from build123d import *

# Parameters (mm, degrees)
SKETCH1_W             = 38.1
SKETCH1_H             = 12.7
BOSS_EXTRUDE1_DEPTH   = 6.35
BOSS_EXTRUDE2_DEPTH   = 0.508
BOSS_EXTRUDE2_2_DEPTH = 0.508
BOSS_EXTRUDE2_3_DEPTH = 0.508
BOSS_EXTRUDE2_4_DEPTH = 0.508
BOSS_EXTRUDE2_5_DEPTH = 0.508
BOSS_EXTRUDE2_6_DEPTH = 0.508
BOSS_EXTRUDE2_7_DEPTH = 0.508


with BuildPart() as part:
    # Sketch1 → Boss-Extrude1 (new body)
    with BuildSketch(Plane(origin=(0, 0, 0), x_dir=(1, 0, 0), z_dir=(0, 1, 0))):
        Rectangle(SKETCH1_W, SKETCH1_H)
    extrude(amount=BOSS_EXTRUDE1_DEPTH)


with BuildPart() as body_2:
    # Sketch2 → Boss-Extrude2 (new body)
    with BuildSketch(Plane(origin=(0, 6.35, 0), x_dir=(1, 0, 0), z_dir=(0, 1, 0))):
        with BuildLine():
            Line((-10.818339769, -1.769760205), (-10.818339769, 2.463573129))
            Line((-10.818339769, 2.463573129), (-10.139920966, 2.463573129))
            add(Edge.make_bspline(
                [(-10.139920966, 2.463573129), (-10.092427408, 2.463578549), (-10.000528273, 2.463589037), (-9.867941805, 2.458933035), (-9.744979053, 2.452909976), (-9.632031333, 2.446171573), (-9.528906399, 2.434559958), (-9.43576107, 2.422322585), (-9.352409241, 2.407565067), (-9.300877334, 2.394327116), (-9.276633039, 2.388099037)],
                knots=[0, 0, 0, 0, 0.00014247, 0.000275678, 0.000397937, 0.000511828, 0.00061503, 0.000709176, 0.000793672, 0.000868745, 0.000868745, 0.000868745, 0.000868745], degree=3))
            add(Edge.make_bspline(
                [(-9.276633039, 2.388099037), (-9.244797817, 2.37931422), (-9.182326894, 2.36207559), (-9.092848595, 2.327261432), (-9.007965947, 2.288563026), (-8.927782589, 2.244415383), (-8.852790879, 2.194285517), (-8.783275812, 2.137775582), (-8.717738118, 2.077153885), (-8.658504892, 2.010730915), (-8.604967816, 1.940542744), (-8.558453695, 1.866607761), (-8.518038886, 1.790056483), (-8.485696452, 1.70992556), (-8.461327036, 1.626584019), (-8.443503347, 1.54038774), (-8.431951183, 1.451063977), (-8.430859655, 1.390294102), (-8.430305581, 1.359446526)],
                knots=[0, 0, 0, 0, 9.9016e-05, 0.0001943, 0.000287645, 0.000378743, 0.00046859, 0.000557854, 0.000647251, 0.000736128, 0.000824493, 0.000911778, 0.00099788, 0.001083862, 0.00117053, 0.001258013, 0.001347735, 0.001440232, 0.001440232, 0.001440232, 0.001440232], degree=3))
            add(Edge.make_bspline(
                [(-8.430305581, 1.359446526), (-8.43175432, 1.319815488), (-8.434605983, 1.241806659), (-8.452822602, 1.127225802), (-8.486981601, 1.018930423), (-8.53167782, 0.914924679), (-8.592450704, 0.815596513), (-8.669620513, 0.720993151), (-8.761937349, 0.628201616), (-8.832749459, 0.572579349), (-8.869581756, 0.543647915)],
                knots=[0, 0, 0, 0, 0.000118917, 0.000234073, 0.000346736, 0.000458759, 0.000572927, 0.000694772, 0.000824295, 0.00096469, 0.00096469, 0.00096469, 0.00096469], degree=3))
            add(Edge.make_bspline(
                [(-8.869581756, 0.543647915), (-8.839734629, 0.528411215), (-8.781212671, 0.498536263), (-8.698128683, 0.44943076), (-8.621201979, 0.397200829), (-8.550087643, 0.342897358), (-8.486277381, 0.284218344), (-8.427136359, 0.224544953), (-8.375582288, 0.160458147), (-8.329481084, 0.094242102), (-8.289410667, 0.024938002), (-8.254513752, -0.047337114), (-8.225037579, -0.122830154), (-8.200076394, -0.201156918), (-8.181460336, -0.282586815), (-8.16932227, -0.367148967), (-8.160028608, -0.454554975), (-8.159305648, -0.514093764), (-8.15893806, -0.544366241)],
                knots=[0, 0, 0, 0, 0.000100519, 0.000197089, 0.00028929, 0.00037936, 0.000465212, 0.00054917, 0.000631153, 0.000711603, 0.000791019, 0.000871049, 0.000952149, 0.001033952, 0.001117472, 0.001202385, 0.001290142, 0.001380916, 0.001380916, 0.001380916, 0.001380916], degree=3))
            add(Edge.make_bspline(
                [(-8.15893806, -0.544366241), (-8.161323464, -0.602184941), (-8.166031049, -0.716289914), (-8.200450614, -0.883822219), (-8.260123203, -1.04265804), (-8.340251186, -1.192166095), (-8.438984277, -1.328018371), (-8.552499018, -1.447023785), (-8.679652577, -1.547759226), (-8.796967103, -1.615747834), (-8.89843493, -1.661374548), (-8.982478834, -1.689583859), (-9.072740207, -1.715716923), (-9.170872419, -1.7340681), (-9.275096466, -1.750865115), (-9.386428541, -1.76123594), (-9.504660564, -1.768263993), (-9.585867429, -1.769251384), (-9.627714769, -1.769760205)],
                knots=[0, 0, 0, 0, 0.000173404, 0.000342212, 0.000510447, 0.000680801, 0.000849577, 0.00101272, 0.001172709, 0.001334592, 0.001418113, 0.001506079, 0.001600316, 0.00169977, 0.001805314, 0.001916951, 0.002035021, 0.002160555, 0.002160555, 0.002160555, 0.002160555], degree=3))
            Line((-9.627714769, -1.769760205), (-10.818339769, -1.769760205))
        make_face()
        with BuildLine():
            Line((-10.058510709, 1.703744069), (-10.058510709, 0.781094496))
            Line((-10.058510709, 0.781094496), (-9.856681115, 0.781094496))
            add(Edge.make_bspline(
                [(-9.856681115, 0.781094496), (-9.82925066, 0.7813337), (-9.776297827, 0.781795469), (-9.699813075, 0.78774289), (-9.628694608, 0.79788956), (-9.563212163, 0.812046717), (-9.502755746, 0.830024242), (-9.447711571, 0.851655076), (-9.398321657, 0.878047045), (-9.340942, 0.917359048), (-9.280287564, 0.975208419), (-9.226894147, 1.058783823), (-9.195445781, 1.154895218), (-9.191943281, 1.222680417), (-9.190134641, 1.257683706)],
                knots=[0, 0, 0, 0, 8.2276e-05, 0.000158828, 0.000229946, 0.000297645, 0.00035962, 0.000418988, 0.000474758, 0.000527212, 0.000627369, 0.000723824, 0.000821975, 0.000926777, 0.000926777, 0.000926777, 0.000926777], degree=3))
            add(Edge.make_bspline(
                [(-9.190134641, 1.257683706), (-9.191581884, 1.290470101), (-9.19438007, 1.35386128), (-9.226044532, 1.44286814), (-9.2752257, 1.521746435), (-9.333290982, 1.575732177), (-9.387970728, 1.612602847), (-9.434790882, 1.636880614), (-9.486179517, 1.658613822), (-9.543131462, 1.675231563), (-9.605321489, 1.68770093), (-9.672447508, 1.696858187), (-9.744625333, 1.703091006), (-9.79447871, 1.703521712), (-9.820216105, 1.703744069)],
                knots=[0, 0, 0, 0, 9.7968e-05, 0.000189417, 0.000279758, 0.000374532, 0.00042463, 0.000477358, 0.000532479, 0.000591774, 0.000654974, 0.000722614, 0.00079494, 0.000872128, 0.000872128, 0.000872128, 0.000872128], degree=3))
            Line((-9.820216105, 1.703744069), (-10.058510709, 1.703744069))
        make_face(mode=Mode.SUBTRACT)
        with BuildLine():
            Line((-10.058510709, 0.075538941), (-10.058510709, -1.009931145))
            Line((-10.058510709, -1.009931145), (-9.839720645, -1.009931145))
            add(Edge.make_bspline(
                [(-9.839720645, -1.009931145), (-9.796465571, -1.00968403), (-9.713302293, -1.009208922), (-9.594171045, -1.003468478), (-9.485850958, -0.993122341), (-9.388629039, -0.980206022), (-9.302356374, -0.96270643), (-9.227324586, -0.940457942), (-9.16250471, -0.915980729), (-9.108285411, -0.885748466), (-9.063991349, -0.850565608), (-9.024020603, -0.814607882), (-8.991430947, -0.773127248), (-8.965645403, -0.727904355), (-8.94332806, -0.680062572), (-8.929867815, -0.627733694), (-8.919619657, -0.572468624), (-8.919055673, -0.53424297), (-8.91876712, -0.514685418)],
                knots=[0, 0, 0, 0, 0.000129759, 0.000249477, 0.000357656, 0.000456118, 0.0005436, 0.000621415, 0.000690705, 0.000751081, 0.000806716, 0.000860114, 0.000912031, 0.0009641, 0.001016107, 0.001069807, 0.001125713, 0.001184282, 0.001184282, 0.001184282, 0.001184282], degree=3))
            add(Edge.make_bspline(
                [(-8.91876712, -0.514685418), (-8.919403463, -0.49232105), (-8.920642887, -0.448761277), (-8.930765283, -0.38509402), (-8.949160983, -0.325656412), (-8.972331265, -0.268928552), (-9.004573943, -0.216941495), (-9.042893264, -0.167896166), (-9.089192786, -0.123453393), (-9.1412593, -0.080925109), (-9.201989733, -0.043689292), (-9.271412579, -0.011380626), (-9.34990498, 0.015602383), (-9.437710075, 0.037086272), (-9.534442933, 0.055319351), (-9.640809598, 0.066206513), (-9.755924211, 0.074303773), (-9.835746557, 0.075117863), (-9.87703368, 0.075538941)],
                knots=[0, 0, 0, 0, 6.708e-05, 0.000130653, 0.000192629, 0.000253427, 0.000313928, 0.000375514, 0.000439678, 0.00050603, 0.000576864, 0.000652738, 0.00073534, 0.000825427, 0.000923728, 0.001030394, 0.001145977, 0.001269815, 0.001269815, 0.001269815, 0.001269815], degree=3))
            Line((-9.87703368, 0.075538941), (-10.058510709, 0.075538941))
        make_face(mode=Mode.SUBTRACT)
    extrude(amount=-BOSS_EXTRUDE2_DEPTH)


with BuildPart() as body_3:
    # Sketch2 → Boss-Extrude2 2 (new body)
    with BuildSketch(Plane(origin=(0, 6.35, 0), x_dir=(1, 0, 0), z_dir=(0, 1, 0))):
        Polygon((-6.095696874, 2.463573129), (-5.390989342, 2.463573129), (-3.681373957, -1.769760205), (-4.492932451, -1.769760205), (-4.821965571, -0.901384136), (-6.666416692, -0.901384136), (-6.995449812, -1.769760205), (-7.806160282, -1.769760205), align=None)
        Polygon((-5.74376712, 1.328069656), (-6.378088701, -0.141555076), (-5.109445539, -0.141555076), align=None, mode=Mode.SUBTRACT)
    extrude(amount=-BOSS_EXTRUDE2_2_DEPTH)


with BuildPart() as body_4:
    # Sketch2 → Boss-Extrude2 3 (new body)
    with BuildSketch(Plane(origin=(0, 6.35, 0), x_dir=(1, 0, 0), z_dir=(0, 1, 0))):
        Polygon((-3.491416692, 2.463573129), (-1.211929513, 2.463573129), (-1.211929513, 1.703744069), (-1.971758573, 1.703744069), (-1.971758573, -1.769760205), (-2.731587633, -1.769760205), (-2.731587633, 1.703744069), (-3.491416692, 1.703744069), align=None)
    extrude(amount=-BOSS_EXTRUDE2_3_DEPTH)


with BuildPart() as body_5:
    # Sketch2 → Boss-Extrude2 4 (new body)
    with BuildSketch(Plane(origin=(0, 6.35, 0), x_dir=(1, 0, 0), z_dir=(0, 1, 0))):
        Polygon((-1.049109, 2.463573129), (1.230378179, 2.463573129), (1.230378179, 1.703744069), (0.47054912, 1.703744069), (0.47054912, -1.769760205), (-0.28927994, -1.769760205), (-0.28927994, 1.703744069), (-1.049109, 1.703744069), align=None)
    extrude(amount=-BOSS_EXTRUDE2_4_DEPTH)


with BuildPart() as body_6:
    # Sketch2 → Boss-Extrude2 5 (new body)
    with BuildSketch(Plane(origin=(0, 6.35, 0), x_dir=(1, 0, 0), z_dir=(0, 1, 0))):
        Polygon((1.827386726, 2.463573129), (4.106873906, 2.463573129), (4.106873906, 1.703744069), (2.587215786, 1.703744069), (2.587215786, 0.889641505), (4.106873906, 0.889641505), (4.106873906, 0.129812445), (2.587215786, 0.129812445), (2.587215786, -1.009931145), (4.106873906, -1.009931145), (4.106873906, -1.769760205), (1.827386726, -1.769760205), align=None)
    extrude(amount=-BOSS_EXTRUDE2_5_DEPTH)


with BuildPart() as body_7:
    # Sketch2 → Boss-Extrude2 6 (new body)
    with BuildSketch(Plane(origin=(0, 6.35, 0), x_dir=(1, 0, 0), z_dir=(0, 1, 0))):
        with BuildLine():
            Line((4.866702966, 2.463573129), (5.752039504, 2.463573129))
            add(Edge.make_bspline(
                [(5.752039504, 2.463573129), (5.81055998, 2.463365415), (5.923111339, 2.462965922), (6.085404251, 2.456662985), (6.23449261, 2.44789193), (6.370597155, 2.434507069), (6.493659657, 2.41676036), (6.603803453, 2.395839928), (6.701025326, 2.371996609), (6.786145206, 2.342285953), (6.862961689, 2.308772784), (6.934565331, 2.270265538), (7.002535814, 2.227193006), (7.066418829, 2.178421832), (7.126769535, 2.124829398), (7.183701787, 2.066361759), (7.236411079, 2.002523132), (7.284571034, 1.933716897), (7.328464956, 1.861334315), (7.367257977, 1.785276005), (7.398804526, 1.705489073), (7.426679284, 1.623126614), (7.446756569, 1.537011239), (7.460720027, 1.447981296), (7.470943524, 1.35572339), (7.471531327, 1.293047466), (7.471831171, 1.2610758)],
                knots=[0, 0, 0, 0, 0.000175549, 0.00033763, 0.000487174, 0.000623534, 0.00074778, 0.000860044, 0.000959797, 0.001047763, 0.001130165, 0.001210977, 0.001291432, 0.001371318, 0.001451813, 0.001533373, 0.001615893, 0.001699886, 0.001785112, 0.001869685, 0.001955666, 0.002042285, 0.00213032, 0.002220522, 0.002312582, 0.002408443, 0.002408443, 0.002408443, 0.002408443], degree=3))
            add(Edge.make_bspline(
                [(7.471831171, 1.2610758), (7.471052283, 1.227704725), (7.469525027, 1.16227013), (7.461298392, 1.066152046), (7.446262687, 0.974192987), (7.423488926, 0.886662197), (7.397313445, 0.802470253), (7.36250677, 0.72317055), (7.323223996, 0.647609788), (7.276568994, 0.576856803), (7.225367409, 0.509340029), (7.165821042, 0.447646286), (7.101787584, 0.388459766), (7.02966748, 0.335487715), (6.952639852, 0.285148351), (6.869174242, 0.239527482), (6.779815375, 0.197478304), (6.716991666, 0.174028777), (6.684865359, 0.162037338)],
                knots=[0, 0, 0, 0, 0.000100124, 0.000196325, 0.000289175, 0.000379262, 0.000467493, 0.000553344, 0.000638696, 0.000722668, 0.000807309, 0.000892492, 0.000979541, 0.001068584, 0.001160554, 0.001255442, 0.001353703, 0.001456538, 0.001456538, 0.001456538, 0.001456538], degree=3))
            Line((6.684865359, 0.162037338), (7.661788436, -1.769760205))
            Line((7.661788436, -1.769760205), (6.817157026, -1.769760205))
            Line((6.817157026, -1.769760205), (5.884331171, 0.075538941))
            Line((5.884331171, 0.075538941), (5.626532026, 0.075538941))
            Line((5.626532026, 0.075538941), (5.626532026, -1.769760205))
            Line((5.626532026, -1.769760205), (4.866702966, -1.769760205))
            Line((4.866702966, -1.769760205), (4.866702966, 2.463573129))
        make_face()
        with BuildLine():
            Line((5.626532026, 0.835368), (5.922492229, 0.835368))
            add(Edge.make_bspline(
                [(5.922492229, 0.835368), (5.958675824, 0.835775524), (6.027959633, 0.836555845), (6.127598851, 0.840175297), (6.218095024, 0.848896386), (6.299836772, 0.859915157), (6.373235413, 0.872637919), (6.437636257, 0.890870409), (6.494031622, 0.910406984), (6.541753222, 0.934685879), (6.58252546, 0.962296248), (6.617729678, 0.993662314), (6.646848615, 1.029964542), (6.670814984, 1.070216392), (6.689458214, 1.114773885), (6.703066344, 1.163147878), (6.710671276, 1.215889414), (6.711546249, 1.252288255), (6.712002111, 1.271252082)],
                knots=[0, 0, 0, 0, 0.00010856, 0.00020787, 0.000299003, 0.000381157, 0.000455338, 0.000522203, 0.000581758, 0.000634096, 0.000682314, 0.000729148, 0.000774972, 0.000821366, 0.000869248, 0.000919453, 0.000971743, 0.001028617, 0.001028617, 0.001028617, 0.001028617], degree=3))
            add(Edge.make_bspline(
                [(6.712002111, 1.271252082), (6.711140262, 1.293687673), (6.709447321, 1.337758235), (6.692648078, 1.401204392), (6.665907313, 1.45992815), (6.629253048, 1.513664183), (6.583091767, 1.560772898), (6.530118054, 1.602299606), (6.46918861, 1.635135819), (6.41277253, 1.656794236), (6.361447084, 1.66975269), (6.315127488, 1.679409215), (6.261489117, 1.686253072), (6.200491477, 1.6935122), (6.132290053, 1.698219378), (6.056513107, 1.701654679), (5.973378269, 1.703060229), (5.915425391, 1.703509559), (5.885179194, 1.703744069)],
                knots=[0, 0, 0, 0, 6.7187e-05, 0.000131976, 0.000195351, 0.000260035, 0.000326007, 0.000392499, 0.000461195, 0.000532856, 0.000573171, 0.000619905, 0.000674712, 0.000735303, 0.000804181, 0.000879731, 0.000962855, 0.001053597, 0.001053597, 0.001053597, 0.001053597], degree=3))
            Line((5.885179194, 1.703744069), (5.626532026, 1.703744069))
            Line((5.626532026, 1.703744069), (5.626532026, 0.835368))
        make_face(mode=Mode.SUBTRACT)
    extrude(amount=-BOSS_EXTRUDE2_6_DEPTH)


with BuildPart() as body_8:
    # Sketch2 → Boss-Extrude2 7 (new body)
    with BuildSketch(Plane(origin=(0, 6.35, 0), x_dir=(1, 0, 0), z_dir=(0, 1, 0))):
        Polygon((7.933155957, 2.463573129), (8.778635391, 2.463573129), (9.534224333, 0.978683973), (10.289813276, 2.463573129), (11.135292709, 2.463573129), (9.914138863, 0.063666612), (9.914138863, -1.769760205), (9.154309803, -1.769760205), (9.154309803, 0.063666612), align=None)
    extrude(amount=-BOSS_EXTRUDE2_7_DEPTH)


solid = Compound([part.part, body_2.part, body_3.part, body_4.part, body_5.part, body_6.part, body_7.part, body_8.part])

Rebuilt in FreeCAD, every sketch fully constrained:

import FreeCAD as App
import Part
import Sketcher
Q = App.Units.Quantity

doc = App.newDocument("Part")
body = doc.addObject("PartDesign::Body", "Body")

# Sketch on XZ plane
sketch1 = doc.addObject("Sketcher::SketchObject", "Sketch")
body.addObject(sketch1)
sketch1.AttachmentSupport = (doc.XZ_Plane, [""])
sketch1.MapMode = "FlatFace"
sketch1.addGeometry(Part.LineSegment(App.Vector(-19.05, -6.35, 0), App.Vector(-19.05, 6.35, 0)), False)
sketch1.addGeometry(Part.LineSegment(App.Vector(-19.05, 6.35, 0), App.Vector(19.05, 6.35, 0)), False)
sketch1.addGeometry(Part.LineSegment(App.Vector(19.05, 6.35, 0), App.Vector(19.05, -6.35, 0)), False)
sketch1.addGeometry(Part.LineSegment(App.Vector(19.05, -6.35, 0), App.Vector(-19.05, -6.35, 0)), False)
sketch1.addConstraint(Sketcher.Constraint("Coincident", 0, 2, 1, 1))
sketch1.addConstraint(Sketcher.Constraint("Coincident", 1, 2, 2, 1))
sketch1.addConstraint(Sketcher.Constraint("Coincident", 2, 2, 3, 1))
sketch1.addConstraint(Sketcher.Constraint("Coincident", 3, 2, 0, 1))
sketch1.addConstraint(Sketcher.Constraint("Vertical", 0))
sketch1.addConstraint(Sketcher.Constraint("Horizontal", 1))
sketch1.addConstraint(Sketcher.Constraint("Vertical", 2))
sketch1.addConstraint(Sketcher.Constraint("Horizontal", 3))
sketch1.addConstraint(Sketcher.Constraint("Symmetric", 0, 2, 2, 2, -1, 1))
sketch1.addConstraint(Sketcher.Constraint("DistanceX", 1, 1, 1, 2, Q("1.5 in")))
sketch1.addConstraint(Sketcher.Constraint("DistanceY", 0, 1, 0, 2, Q("0.5 in")))
pad1 = doc.addObject("PartDesign::Pad", "Pad")
body.addObject(pad1)
pad1.Profile = sketch1
pad1.Length = Q("0.25 in")
pad1.Reversed = True
body2 = doc.addObject("PartDesign::Body", "Body001")

# Sketch on XZ plane
sketch2 = doc.addObject("Sketcher::SketchObject", "Sketch001")
body2.addObject(sketch2)
sketch2.AttachmentSupport = (doc.getObject("XZ_Plane001"), [""])
sketch2.MapMode = "FlatFace"
sketch2.AttachmentOffset = App.Placement(App.Vector(0, 0, -0.25 * 25.4), App.Rotation())
sketch2.addGeometry(Part.LineSegment(App.Vector(-10.81834, -2.463573, 0), App.Vector(-10.81834, 1.76976, 0)), False)
sketch2.addGeometry(Part.LineSegment(App.Vector(-10.81834, 1.76976, 0), App.Vector(-9.627715, 1.76976, 0)), False)
sketch2.addGeometry(Part.BSplineCurve([App.Vector(-8.158938, 0.544366, 0), App.Vector(-8.161323, 0.602185, 0), App.Vector(-8.166031, 0.71629, 0), App.Vector(-8.200451, 0.883822, 0), App.Vector(-8.260123, 1.042658, 0), App.Vector(-8.340251, 1.192166, 0), App.Vector(-8.438984, 1.328018, 0), App.Vector(-8.552499, 1.447024, 0), App.Vector(-8.679653, 1.547759, 0), App.Vector(-8.796967, 1.615748, 0), App.Vector(-8.898435, 1.661375, 0), App.Vector(-8.982479, 1.689584, 0), App.Vector(-9.07274, 1.715717, 0), App.Vector(-9.170872, 1.734068, 0), App.Vector(-9.275096, 1.750865, 0), App.Vector(-9.386429, 1.761236, 0), App.Vector(-9.504661, 1.768264, 0), App.Vector(-9.585867, 1.769251, 0), App.Vector(-9.627715, 1.76976, 0)], [4, 1, 1, 1, 1, 1, 1, 1, 1, 1, 1, 1, 1, 1, 1, 1, 4], [0, 0.000173404, 0.000342212, 0.000510447, 0.000680801, 0.000849577, 0.00101272, 0.001172709, 0.001334592, 0.001418113, 0.001506079, 0.001600316, 0.00169977, 0.001805314, 0.001916951, 0.002035021, 0.002160555], False, 3, [1, 1, 1, 1, 1, 1, 1, 1, 1, 1, 1, 1, 1, 1, 1, 1, 1, 1, 1], False), False)
sketch2.addGeometry(Part.BSplineCurve([App.Vector(-8.869582, -0.543648, 0), App.Vector(-8.839735, -0.528411, 0), App.Vector(-8.781213, -0.498536, 0), App.Vector(-8.698129, -0.449431, 0), App.Vector(-8.621202, -0.397201, 0), App.Vector(-8.550088, -0.342897, 0), App.Vector(-8.486277, -0.284218, 0), App.Vector(-8.427136, -0.224545, 0), App.Vector(-8.375582, -0.160458, 0), App.Vector(-8.329481, -0.094242, 0), App.Vector(-8.289411, -0.024938, 0), App.Vector(-8.254514, 0.047337, 0), App.Vector(-8.225038, 0.12283, 0), App.Vector(-8.200076, 0.201157, 0), App.Vector(-8.18146, 0.282587, 0), App.Vector(-8.169322, 0.367149, 0), App.Vector(-8.160029, 0.454555, 0), App.Vector(-8.159306, 0.514094, 0), App.Vector(-8.158938, 0.544366, 0)], [4, 1, 1, 1, 1, 1, 1, 1, 1, 1, 1, 1, 1, 1, 1, 1, 4], [0, 0.000100519, 0.000197089, 0.00028929, 0.00037936, 0.000465212, 0.00054917, 0.000631153, 0.000711603, 0.000791019, 0.000871049, 0.000952149, 0.001033952, 0.001117472, 0.001202385, 0.001290142, 0.001380916], False, 3, [1, 1, 1, 1, 1, 1, 1, 1, 1, 1, 1, 1, 1, 1, 1, 1, 1, 1, 1], False), False)
sketch2.addGeometry(Part.BSplineCurve([App.Vector(-8.430306, -1.359447, 0), App.Vector(-8.431754, -1.319815, 0), App.Vector(-8.434606, -1.241807, 0), App.Vector(-8.452823, -1.127226, 0), App.Vector(-8.486982, -1.01893, 0), App.Vector(-8.531678, -0.914925, 0), App.Vector(-8.592451, -0.815597, 0), App.Vector(-8.669621, -0.720993, 0), App.Vector(-8.761937, -0.628202, 0), App.Vector(-8.832749, -0.572579, 0), App.Vector(-8.869582, -0.543648, 0)], [4, 1, 1, 1, 1, 1, 1, 1, 4], [0, 0.000118917, 0.000234073, 0.000346736, 0.000458759, 0.000572927, 0.000694772, 0.000824295, 0.00096469], False, 3, [1, 1, 1, 1, 1, 1, 1, 1, 1, 1, 1], False), False)
sketch2.addGeometry(Part.BSplineCurve([App.Vector(-9.276633, -2.388099, 0), App.Vector(-9.244798, -2.379314, 0), App.Vector(-9.182327, -2.362076, 0), App.Vector(-9.092849, -2.327261, 0), App.Vector(-9.007966, -2.288563, 0), App.Vector(-8.927783, -2.244415, 0), App.Vector(-8.852791, -2.194286, 0), App.Vector(-8.783276, -2.137776, 0), App.Vector(-8.717738, -2.077154, 0), App.Vector(-8.658505, -2.010731, 0), App.Vector(-8.604968, -1.940543, 0), App.Vector(-8.558454, -1.866608, 0), App.Vector(-8.518039, -1.790056, 0), App.Vector(-8.485696, -1.709926, 0), App.Vector(-8.461327, -1.626584, 0), App.Vector(-8.443503, -1.540388, 0), App.Vector(-8.431951, -1.451064, 0), App.Vector(-8.43086, -1.390294, 0), App.Vector(-8.430306, -1.359447, 0)], [4, 1, 1, 1, 1, 1, 1, 1, 1, 1, 1, 1, 1, 1, 1, 1, 4], [0, 0.000099016, 0.0001943, 0.000287645, 0.000378743, 0.00046859, 0.000557854, 0.000647251, 0.000736128, 0.000824493, 0.000911778, 0.00099788, 0.001083862, 0.00117053, 0.001258013, 0.001347735, 0.001440232], False, 3, [1, 1, 1, 1, 1, 1, 1, 1, 1, 1, 1, 1, 1, 1, 1, 1, 1, 1, 1], False), False)
sketch2.addGeometry(Part.BSplineCurve([App.Vector(-10.139921, -2.463573, 0), App.Vector(-10.092427, -2.463579, 0), App.Vector(-10.000528, -2.463589, 0), App.Vector(-9.867942, -2.458933, 0), App.Vector(-9.744979, -2.45291, 0), App.Vector(-9.632031, -2.446172, 0), App.Vector(-9.528906, -2.43456, 0), App.Vector(-9.435761, -2.422323, 0), App.Vector(-9.352409, -2.407565, 0), App.Vector(-9.300877, -2.394327, 0), App.Vector(-9.276633, -2.388099, 0)], [4, 1, 1, 1, 1, 1, 1, 1, 4], [0, 0.00014247, 0.000275678, 0.000397937, 0.000511828, 0.00061503, 0.000709176, 0.000793672, 0.000868745], False, 3, [1, 1, 1, 1, 1, 1, 1, 1, 1, 1, 1], False), False)
sketch2.addGeometry(Part.LineSegment(App.Vector(-10.139921, -2.463573, 0), App.Vector(-10.81834, -2.463573, 0)), False)
sketch2.addGeometry(Part.LineSegment(App.Vector(-10.058511, -0.075539, 0), App.Vector(-9.877034, -0.075539, 0)), False)
sketch2.addGeometry(Part.BSplineCurve([App.Vector(-8.918767, 0.514685, 0), App.Vector(-8.919403, 0.492321, 0), App.Vector(-8.920643, 0.448761, 0), App.Vector(-8.930765, 0.385094, 0), App.Vector(-8.949161, 0.325656, 0), App.Vector(-8.972331, 0.268929, 0), App.Vector(-9.004574, 0.216941, 0), App.Vector(-9.042893, 0.167896, 0), App.Vector(-9.089193, 0.123453, 0), App.Vector(-9.141259, 0.080925, 0), App.Vector(-9.20199, 0.043689, 0), App.Vector(-9.271413, 0.011381, 0), App.Vector(-9.349905, -0.015602, 0), App.Vector(-9.43771, -0.037086, 0), App.Vector(-9.534443, -0.055319, 0), App.Vector(-9.64081, -0.066207, 0), App.Vector(-9.755924, -0.074304, 0), App.Vector(-9.835747, -0.075118, 0), App.Vector(-9.877034, -0.075539, 0)], [4, 1, 1, 1, 1, 1, 1, 1, 1, 1, 1, 1, 1, 1, 1, 1, 4], [0, 0.00006708, 0.000130653, 0.000192629, 0.000253427, 0.000313928, 0.000375514, 0.000439678, 0.00050603, 0.000576864, 0.000652738, 0.00073534, 0.000825427, 0.000923728, 0.001030394, 0.001145977, 0.001269815], False, 3, [1, 1, 1, 1, 1, 1, 1, 1, 1, 1, 1, 1, 1, 1, 1, 1, 1, 1, 1], False), False)
sketch2.addGeometry(Part.BSplineCurve([App.Vector(-9.839721, 1.009931, 0), App.Vector(-9.796466, 1.009684, 0), App.Vector(-9.713302, 1.009209, 0), App.Vector(-9.594171, 1.003468, 0), App.Vector(-9.485851, 0.993122, 0), App.Vector(-9.388629, 0.980206, 0), App.Vector(-9.302356, 0.962706, 0), App.Vector(-9.227325, 0.940458, 0), App.Vector(-9.162505, 0.915981, 0), App.Vector(-9.108285, 0.885748, 0), App.Vector(-9.063991, 0.850566, 0), App.Vector(-9.024021, 0.814608, 0), App.Vector(-8.991431, 0.773127, 0), App.Vector(-8.965645, 0.727904, 0), App.Vector(-8.943328, 0.680063, 0), App.Vector(-8.929868, 0.627734, 0), App.Vector(-8.91962, 0.572469, 0), App.Vector(-8.919056, 0.534243, 0), App.Vector(-8.918767, 0.514685, 0)], [4, 1, 1, 1, 1, 1, 1, 1, 1, 1, 1, 1, 1, 1, 1, 1, 4], [0, 0.000129759, 0.000249477, 0.000357656, 0.000456118, 0.0005436, 0.000621415, 0.000690705, 0.000751081, 0.000806716, 0.000860114, 0.000912031, 0.0009641, 0.001016107, 0.001069807, 0.001125713, 0.001184282], False, 3, [1, 1, 1, 1, 1, 1, 1, 1, 1, 1, 1, 1, 1, 1, 1, 1, 1, 1, 1], False), False)
sketch2.addGeometry(Part.LineSegment(App.Vector(-9.839721, 1.009931, 0), App.Vector(-10.058511, 1.009931, 0)), False)
sketch2.addGeometry(Part.LineSegment(App.Vector(-10.058511, 1.009931, 0), App.Vector(-10.058511, -0.075539, 0)), False)
sketch2.addGeometry(Part.LineSegment(App.Vector(-10.058511, -1.703744, 0), App.Vector(-9.820216, -1.703744, 0)), False)
sketch2.addGeometry(Part.BSplineCurve([App.Vector(-9.190135, -1.257684, 0), App.Vector(-9.191582, -1.29047, 0), App.Vector(-9.19438, -1.353861, 0), App.Vector(-9.226045, -1.442868, 0), App.Vector(-9.275226, -1.521746, 0), App.Vector(-9.333291, -1.575732, 0), App.Vector(-9.387971, -1.612603, 0), App.Vector(-9.434791, -1.636881, 0), App.Vector(-9.48618, -1.658614, 0), App.Vector(-9.543131, -1.675232, 0), App.Vector(-9.605321, -1.687701, 0), App.Vector(-9.672448, -1.696858, 0), App.Vector(-9.744625, -1.703091, 0), App.Vector(-9.794479, -1.703522, 0), App.Vector(-9.820216, -1.703744, 0)], [4, 1, 1, 1, 1, 1, 1, 1, 1, 1, 1, 1, 4], [0, 0.000097968, 0.000189417, 0.000279758, 0.000374532, 0.00042463, 0.000477358, 0.000532479, 0.000591774, 0.000654974, 0.000722614, 0.00079494, 0.000872128], False, 3, [1, 1, 1, 1, 1, 1, 1, 1, 1, 1, 1, 1, 1, 1, 1], False), False)
sketch2.addGeometry(Part.BSplineCurve([App.Vector(-9.856681, -0.781094, 0), App.Vector(-9.829251, -0.781334, 0), App.Vector(-9.776298, -0.781795, 0), App.Vector(-9.699813, -0.787743, 0), App.Vector(-9.628695, -0.79789, 0), App.Vector(-9.563212, -0.812047, 0), App.Vector(-9.502756, -0.830024, 0), App.Vector(-9.447712, -0.851655, 0), App.Vector(-9.398322, -0.878047, 0), App.Vector(-9.340942, -0.917359, 0), App.Vector(-9.280288, -0.975208, 0), App.Vector(-9.226894, -1.058784, 0), App.Vector(-9.195446, -1.154895, 0), App.Vector(-9.191943, -1.22268, 0), App.Vector(-9.190135, -1.257684, 0)], [4, 1, 1, 1, 1, 1, 1, 1, 1, 1, 1, 1, 4], [0, 0.000082276, 0.000158828, 0.000229946, 0.000297645, 0.00035962, 0.000418988, 0.000474758, 0.000527212, 0.000627369, 0.000723824, 0.000821975, 0.000926777], False, 3, [1, 1, 1, 1, 1, 1, 1, 1, 1, 1, 1, 1, 1, 1, 1], False), False)
sketch2.addGeometry(Part.LineSegment(App.Vector(-9.856681, -0.781094, 0), App.Vector(-10.058511, -0.781094, 0)), False)
sketch2.addGeometry(Part.LineSegment(App.Vector(-10.058511, -0.781094, 0), App.Vector(-10.058511, -1.703744, 0)), False)
sketch2.addConstraint(Sketcher.Constraint("Block", 2))
sketch2.addConstraint(Sketcher.Constraint("Block", 3))
sketch2.addConstraint(Sketcher.Constraint("Block", 4))
sketch2.addConstraint(Sketcher.Constraint("Block", 5))
sketch2.addConstraint(Sketcher.Constraint("Block", 6))
sketch2.addConstraint(Sketcher.Constraint("Block", 9))
sketch2.addConstraint(Sketcher.Constraint("Block", 10))
sketch2.addConstraint(Sketcher.Constraint("Block", 14))
sketch2.addConstraint(Sketcher.Constraint("Block", 15))
sketch2.addConstraint(Sketcher.Constraint("Coincident", 0, 2, 1, 1))
sketch2.addConstraint(Sketcher.Constraint("Coincident", 1, 2, 2, 2))
sketch2.addConstraint(Sketcher.Constraint("Coincident", 6, 1, 7, 1))
sketch2.addConstraint(Sketcher.Constraint("Coincident", 7, 2, 0, 1))
sketch2.addConstraint(Sketcher.Constraint("Coincident", 8, 2, 9, 2))
sketch2.addConstraint(Sketcher.Constraint("Coincident", 10, 1, 11, 1))
sketch2.addConstraint(Sketcher.Constraint("Coincident", 11, 2, 12, 1))
sketch2.addConstraint(Sketcher.Constraint("Coincident", 12, 2, 8, 1))
sketch2.addConstraint(Sketcher.Constraint("Coincident", 13, 2, 14, 2))
sketch2.addConstraint(Sketcher.Constraint("Coincident", 15, 1, 16, 1))
sketch2.addConstraint(Sketcher.Constraint("Coincident", 16, 2, 17, 1))
sketch2.addConstraint(Sketcher.Constraint("Coincident", 17, 2, 13, 1))
sketch2.addConstraint(Sketcher.Constraint("Vertical", 0))
sketch2.addConstraint(Sketcher.Constraint("Horizontal", 1))
sketch2.addConstraint(Sketcher.Constraint("Horizontal", 7))
sketch2.addConstraint(Sketcher.Constraint("Horizontal", 8))
sketch2.addConstraint(Sketcher.Constraint("Horizontal", 11))
sketch2.addConstraint(Sketcher.Constraint("Vertical", 12))
sketch2.addConstraint(Sketcher.Constraint("Horizontal", 13))
sketch2.addConstraint(Sketcher.Constraint("Horizontal", 16))
sketch2.addConstraint(Sketcher.Constraint("Vertical", 17))
sketch2.addConstraint(Sketcher.Constraint("Vertical", 12, 2, 16, 2))
sketch2.addConstraint(Sketcher.Constraint("DistanceX", 1, 1, 1, 2, Q("0.046875 in")))
sketch2.addConstraint(Sketcher.Constraint("DistanceX", 11, 2, 11, 1, 0.21879))
pad2 = doc.addObject("PartDesign::Pad", "Pad001")
body2.addObject(pad2)
pad2.Profile = sketch2
pad2.Length = Q("0.02 in")
body3 = doc.addObject("PartDesign::Body", "Body002")

# Sketch on XZ plane
sketch3 = doc.addObject("Sketcher::SketchObject", "Sketch002")
body3.addObject(sketch3)
sketch3.AttachmentSupport = (doc.getObject("XZ_Plane002"), [""])
sketch3.MapMode = "FlatFace"
sketch3.AttachmentOffset = App.Placement(App.Vector(0, 0, -0.25 * 25.4), App.Rotation())
sketch3.addGeometry(Part.LineSegment(App.Vector(-5.390989, -2.463573, 0), App.Vector(-6.095697, -2.463573, 0)), False)
sketch3.addGeometry(Part.LineSegment(App.Vector(-6.095697, -2.463573, 0), App.Vector(-7.80616, 1.76976, 0)), False)
sketch3.addGeometry(Part.LineSegment(App.Vector(-7.80616, 1.76976, 0), App.Vector(-6.99545, 1.76976, 0)), False)
sketch3.addGeometry(Part.LineSegment(App.Vector(-6.99545, 1.76976, 0), App.Vector(-6.666417, 0.901384, 0)), False)
sketch3.addGeometry(Part.LineSegment(App.Vector(-6.666417, 0.901384, 0), App.Vector(-4.821966, 0.901384, 0)), False)
sketch3.addGeometry(Part.LineSegment(App.Vector(-4.821966, 0.901384, 0), App.Vector(-4.492932, 1.76976, 0)), False)
sketch3.addGeometry(Part.LineSegment(App.Vector(-4.492932, 1.76976, 0), App.Vector(-3.681374, 1.76976, 0)), False)
sketch3.addGeometry(Part.LineSegment(App.Vector(-3.681374, 1.76976, 0), App.Vector(-5.390989, -2.463573, 0)), False)
sketch3.addGeometry(Part.LineSegment(App.Vector(-5.743767, -1.32807, 0), App.Vector(-5.109446, 0.141555, 0)), False)
sketch3.addGeometry(Part.LineSegment(App.Vector(-5.109446, 0.141555, 0), App.Vector(-6.378089, 0.141555, 0)), False)
sketch3.addGeometry(Part.LineSegment(App.Vector(-6.378089, 0.141555, 0), App.Vector(-5.743767, -1.32807, 0)), False)
sketch3.addConstraint(Sketcher.Constraint("Coincident", 0, 2, 1, 1))
sketch3.addConstraint(Sketcher.Constraint("Coincident", 1, 2, 2, 1))
sketch3.addConstraint(Sketcher.Constraint("Coincident", 2, 2, 3, 1))
sketch3.addConstraint(Sketcher.Constraint("Coincident", 3, 2, 4, 1))
sketch3.addConstraint(Sketcher.Constraint("Coincident", 4, 2, 5, 1))
sketch3.addConstraint(Sketcher.Constraint("Coincident", 5, 2, 6, 1))
sketch3.addConstraint(Sketcher.Constraint("Coincident", 6, 2, 7, 1))
sketch3.addConstraint(Sketcher.Constraint("Coincident", 7, 2, 0, 1))
sketch3.addConstraint(Sketcher.Constraint("Coincident", 8, 2, 9, 1))
sketch3.addConstraint(Sketcher.Constraint("Coincident", 9, 2, 10, 1))
sketch3.addConstraint(Sketcher.Constraint("Coincident", 10, 2, 8, 1))
sketch3.addConstraint(Sketcher.Constraint("Horizontal", 0))
sketch3.addConstraint(Sketcher.Constraint("Horizontal", 2))
sketch3.addConstraint(Sketcher.Constraint("Horizontal", 4))
sketch3.addConstraint(Sketcher.Constraint("Horizontal", 6))
sketch3.addConstraint(Sketcher.Constraint("Horizontal", 9))
sketch3.addConstraint(Sketcher.Constraint("Horizontal", 2, 2, 5, 2))
sketch3.addConstraint(Sketcher.Constraint("Equal", 3, 5))
sketch3.addConstraint(Sketcher.Constraint("Equal", 8, 10))
sketch3.addConstraint(Sketcher.Constraint("DistanceX", 2, 1, 2, 2, 0.81071))
sketch3.addConstraint(Sketcher.Constraint("DistanceX", 4, 1, 4, 2, 1.844451))
sketch3.addConstraint(Sketcher.Constraint("DistanceX", 6, 1, 6, 2, 0.811558))
sketch3.addConstraint(Sketcher.Constraint("DistanceX", 10, 2, 4, 2, 0.921802))
sketch3.addConstraint(Sketcher.Constraint("Distance", 1, 4.565829))
sketch3.addConstraint(Sketcher.Constraint("Distance", 7, 4.565512))
sketch3.addConstraint(Sketcher.Constraint("DistanceX", 0, 2, 0, 1, 0.704708))
sketch3.addConstraint(Sketcher.Constraint("DistanceX", 9, 2, 9, 1, 1.268643))
sketch3.addConstraint(Sketcher.Constraint("DistanceX", 1, 2, -1, 1, 7.80616))
sketch3.addConstraint(Sketcher.Constraint("DistanceY", -1, 1, 1, 2, 1.76976))
sketch3.addConstraint(Sketcher.Constraint("DistanceX", 7, 2, -1, 1, 5.390989))
sketch3.addConstraint(Sketcher.Constraint("DistanceY", 10, 2, -1, 1, 1.32807))
sketch3.addConstraint(Sketcher.Constraint("DistanceY", 8, 2, 4, 2, 0.759829))
sketch3.addConstraint(Sketcher.Constraint("Distance", 3, 0.928623))
pad3 = doc.addObject("PartDesign::Pad", "Pad002")
body3.addObject(pad3)
pad3.Profile = sketch3
pad3.Length = Q("0.02 in")
body4 = doc.addObject("PartDesign::Body", "Body003")

# Sketch on XZ plane
sketch4 = doc.addObject("Sketcher::SketchObject", "Sketch003")
body4.addObject(sketch4)
sketch4.AttachmentSupport = (doc.getObject("XZ_Plane003"), [""])
sketch4.MapMode = "FlatFace"
sketch4.AttachmentOffset = App.Placement(App.Vector(0, 0, -0.25 * 25.4), App.Rotation())
sketch4.addGeometry(Part.LineSegment(App.Vector(-1.21193, -2.463573, 0), App.Vector(-3.491417, -2.463573, 0)), False)
sketch4.addGeometry(Part.LineSegment(App.Vector(-3.491417, -2.463573, 0), App.Vector(-3.491417, -1.703744, 0)), False)
sketch4.addGeometry(Part.LineSegment(App.Vector(-3.491417, -1.703744, 0), App.Vector(-2.731588, -1.703744, 0)), False)
sketch4.addGeometry(Part.LineSegment(App.Vector(-2.731588, -1.703744, 0), App.Vector(-2.731588, 1.76976, 0)), False)
sketch4.addGeometry(Part.LineSegment(App.Vector(-2.731588, 1.76976, 0), App.Vector(-1.971759, 1.76976, 0)), False)
sketch4.addGeometry(Part.LineSegment(App.Vector(-1.971759, 1.76976, 0), App.Vector(-1.971759, -1.703744, 0)), False)
sketch4.addGeometry(Part.LineSegment(App.Vector(-1.971759, -1.703744, 0), App.Vector(-1.21193, -1.703744, 0)), False)
sketch4.addGeometry(Part.LineSegment(App.Vector(-1.21193, -1.703744, 0), App.Vector(-1.21193, -2.463573, 0)), False)
sketch4.addConstraint(Sketcher.Constraint("Coincident", 0, 2, 1, 1))
sketch4.addConstraint(Sketcher.Constraint("Coincident", 1, 2, 2, 1))
sketch4.addConstraint(Sketcher.Constraint("Coincident", 2, 2, 3, 1))
sketch4.addConstraint(Sketcher.Constraint("Coincident", 3, 2, 4, 1))
sketch4.addConstraint(Sketcher.Constraint("Coincident", 4, 2, 5, 1))
sketch4.addConstraint(Sketcher.Constraint("Coincident", 5, 2, 6, 1))
sketch4.addConstraint(Sketcher.Constraint("Coincident", 6, 2, 7, 1))
sketch4.addConstraint(Sketcher.Constraint("Coincident", 7, 2, 0, 1))
sketch4.addConstraint(Sketcher.Constraint("Horizontal", 0))
sketch4.addConstraint(Sketcher.Constraint("Vertical", 1))
sketch4.addConstraint(Sketcher.Constraint("Horizontal", 2))
sketch4.addConstraint(Sketcher.Constraint("Vertical", 3))
sketch4.addConstraint(Sketcher.Constraint("Horizontal", 4))
sketch4.addConstraint(Sketcher.Constraint("Vertical", 5))
sketch4.addConstraint(Sketcher.Constraint("Horizontal", 6))
sketch4.addConstraint(Sketcher.Constraint("Vertical", 7))
sketch4.addConstraint(Sketcher.Constraint("Horizontal", 2, 2, 5, 2))
sketch4.addConstraint(Sketcher.Constraint("Equal", 2, 4))
sketch4.addConstraint(Sketcher.Constraint("Equal", 4, 6))
sketch4.addConstraint(Sketcher.Constraint("Equal", 6, 1))
sketch4.addConstraint(Sketcher.Constraint("DistanceX", 2, 1, 2, 2, 0.759829))
sketch4.addConstraint(Sketcher.Constraint("DistanceY", 3, 1, 3, 2, 3.473504))
sketch4.addConstraint(Sketcher.Constraint("DistanceY", -1, 1, 3, 2, 1.76976))
sketch4.addConstraint(Sketcher.Constraint("DistanceX", 4, 2, -1, 1, 1.971759))
pad4 = doc.addObject("PartDesign::Pad", "Pad003")
body4.addObject(pad4)
pad4.Profile = sketch4
pad4.Length = Q("0.02 in")
body5 = doc.addObject("PartDesign::Body", "Body004")

# Sketch on XZ plane
sketch5 = doc.addObject("Sketcher::SketchObject", "Sketch004")
body5.addObject(sketch5)
sketch5.AttachmentSupport = (doc.getObject("XZ_Plane004"), [""])
sketch5.MapMode = "FlatFace"
sketch5.AttachmentOffset = App.Placement(App.Vector(0, 0, -0.25 * 25.4), App.Rotation())
sketch5.addGeometry(Part.LineSegment(App.Vector(1.230378, -2.463573, 0), App.Vector(-1.049109, -2.463573, 0)), False)
sketch5.addGeometry(Part.LineSegment(App.Vector(-1.049109, -2.463573, 0), App.Vector(-1.049109, -1.703744, 0)), False)
sketch5.addGeometry(Part.LineSegment(App.Vector(-1.049109, -1.703744, 0), App.Vector(-0.28928, -1.703744, 0)), False)
sketch5.addGeometry(Part.LineSegment(App.Vector(-0.28928, -1.703744, 0), App.Vector(-0.28928, 1.76976, 0)), False)
sketch5.addGeometry(Part.LineSegment(App.Vector(-0.28928, 1.76976, 0), App.Vector(0.470549, 1.76976, 0)), False)
sketch5.addGeometry(Part.LineSegment(App.Vector(0.470549, 1.76976, 0), App.Vector(0.470549, -1.703744, 0)), False)
sketch5.addGeometry(Part.LineSegment(App.Vector(0.470549, -1.703744, 0), App.Vector(1.230378, -1.703744, 0)), False)
sketch5.addGeometry(Part.LineSegment(App.Vector(1.230378, -1.703744, 0), App.Vector(1.230378, -2.463573, 0)), False)
sketch5.addConstraint(Sketcher.Constraint("Coincident", 0, 2, 1, 1))
sketch5.addConstraint(Sketcher.Constraint("Coincident", 1, 2, 2, 1))
sketch5.addConstraint(Sketcher.Constraint("Coincident", 2, 2, 3, 1))
sketch5.addConstraint(Sketcher.Constraint("Coincident", 3, 2, 4, 1))
sketch5.addConstraint(Sketcher.Constraint("Coincident", 4, 2, 5, 1))
sketch5.addConstraint(Sketcher.Constraint("Coincident", 5, 2, 6, 1))
sketch5.addConstraint(Sketcher.Constraint("Coincident", 6, 2, 7, 1))
sketch5.addConstraint(Sketcher.Constraint("Coincident", 7, 2, 0, 1))
sketch5.addConstraint(Sketcher.Constraint("Horizontal", 0))
sketch5.addConstraint(Sketcher.Constraint("Vertical", 1))
sketch5.addConstraint(Sketcher.Constraint("Horizontal", 2))
sketch5.addConstraint(Sketcher.Constraint("Vertical", 3))
sketch5.addConstraint(Sketcher.Constraint("Horizontal", 4))
sketch5.addConstraint(Sketcher.Constraint("Vertical", 5))
sketch5.addConstraint(Sketcher.Constraint("Horizontal", 6))
sketch5.addConstraint(Sketcher.Constraint("Vertical", 7))
sketch5.addConstraint(Sketcher.Constraint("Horizontal", 2, 2, 5, 2))
sketch5.addConstraint(Sketcher.Constraint("Equal", 2, 4))
sketch5.addConstraint(Sketcher.Constraint("Equal", 4, 6))
sketch5.addConstraint(Sketcher.Constraint("Equal", 6, 1))
sketch5.addConstraint(Sketcher.Constraint("DistanceX", 2, 1, 2, 2, 0.759829))
sketch5.addConstraint(Sketcher.Constraint("DistanceY", 3, 1, 3, 2, 3.473504))
sketch5.addConstraint(Sketcher.Constraint("DistanceX", 0, 2, -1, 1, 1.049109))
sketch5.addConstraint(Sketcher.Constraint("DistanceY", -1, 1, 3, 2, 1.76976))
pad5 = doc.addObject("PartDesign::Pad", "Pad004")
body5.addObject(pad5)
pad5.Profile = sketch5
pad5.Length = Q("0.02 in")
body6 = doc.addObject("PartDesign::Body", "Body005")

# Sketch on XZ plane
sketch6 = doc.addObject("Sketcher::SketchObject", "Sketch005")
body6.addObject(sketch6)
sketch6.AttachmentSupport = (doc.getObject("XZ_Plane005"), [""])
sketch6.MapMode = "FlatFace"
sketch6.AttachmentOffset = App.Placement(App.Vector(0, 0, -0.25 * 25.4), App.Rotation())
sketch6.addGeometry(Part.LineSegment(App.Vector(4.106874, -2.463573, 0), App.Vector(1.827387, -2.463573, 0)), False)
sketch6.addGeometry(Part.LineSegment(App.Vector(1.827387, -2.463573, 0), App.Vector(1.827387, 1.76976, 0)), False)
sketch6.addGeometry(Part.LineSegment(App.Vector(1.827387, 1.76976, 0), App.Vector(4.106874, 1.76976, 0)), False)
sketch6.addGeometry(Part.LineSegment(App.Vector(4.106874, 1.76976, 0), App.Vector(4.106874, 1.009931, 0)), False)
sketch6.addGeometry(Part.LineSegment(App.Vector(4.106874, 1.009931, 0), App.Vector(2.587216, 1.009931, 0)), False)
sketch6.addGeometry(Part.LineSegment(App.Vector(2.587216, 1.009931, 0), App.Vector(2.587216, -0.129812, 0)), False)
sketch6.addGeometry(Part.LineSegment(App.Vector(2.587216, -0.129812, 0), App.Vector(4.106874, -0.129812, 0)), False)
sketch6.addGeometry(Part.LineSegment(App.Vector(4.106874, -0.129812, 0), App.Vector(4.106874, -0.889642, 0)), False)
sketch6.addGeometry(Part.LineSegment(App.Vector(4.106874, -0.889642, 0), App.Vector(2.587216, -0.889642, 0)), False)
sketch6.addGeometry(Part.LineSegment(App.Vector(2.587216, -0.889642, 0), App.Vector(2.587216, -1.703744, 0)), False)
sketch6.addGeometry(Part.LineSegment(App.Vector(2.587216, -1.703744, 0), App.Vector(4.106874, -1.703744, 0)), False)
sketch6.addGeometry(Part.LineSegment(App.Vector(4.106874, -1.703744, 0), App.Vector(4.106874, -2.463573, 0)), False)
sketch6.addConstraint(Sketcher.Constraint("Coincident", 0, 2, 1, 1))
sketch6.addConstraint(Sketcher.Constraint("Coincident", 1, 2, 2, 1))
sketch6.addConstraint(Sketcher.Constraint("Coincident", 2, 2, 3, 1))
sketch6.addConstraint(Sketcher.Constraint("Coincident", 3, 2, 4, 1))
sketch6.addConstraint(Sketcher.Constraint("Coincident", 4, 2, 5, 1))
sketch6.addConstraint(Sketcher.Constraint("Coincident", 5, 2, 6, 1))
sketch6.addConstraint(Sketcher.Constraint("Coincident", 6, 2, 7, 1))
sketch6.addConstraint(Sketcher.Constraint("Coincident", 7, 2, 8, 1))
sketch6.addConstraint(Sketcher.Constraint("Coincident", 8, 2, 9, 1))
sketch6.addConstraint(Sketcher.Constraint("Coincident", 9, 2, 10, 1))
sketch6.addConstraint(Sketcher.Constraint("Coincident", 10, 2, 11, 1))
sketch6.addConstraint(Sketcher.Constraint("Coincident", 11, 2, 0, 1))
sketch6.addConstraint(Sketcher.Constraint("Horizontal", 0))
sketch6.addConstraint(Sketcher.Constraint("Vertical", 1))
sketch6.addConstraint(Sketcher.Constraint("Horizontal", 2))
sketch6.addConstraint(Sketcher.Constraint("Vertical", 3))
sketch6.addConstraint(Sketcher.Constraint("Horizontal", 4))
sketch6.addConstraint(Sketcher.Constraint("Vertical", 5))
sketch6.addConstraint(Sketcher.Constraint("Horizontal", 6))
sketch6.addConstraint(Sketcher.Constraint("Vertical", 7))
sketch6.addConstraint(Sketcher.Constraint("Horizontal", 8))
sketch6.addConstraint(Sketcher.Constraint("Vertical", 9))
sketch6.addConstraint(Sketcher.Constraint("Horizontal", 10))
sketch6.addConstraint(Sketcher.Constraint("Vertical", 11))
sketch6.addConstraint(Sketcher.Constraint("Vertical", 3, 2, 6, 2))
sketch6.addConstraint(Sketcher.Constraint("Vertical", 5, 2, 8, 2))
sketch6.addConstraint(Sketcher.Constraint("Vertical", 7, 2, 10, 2))
sketch6.addConstraint(Sketcher.Constraint("Equal", 3, 7))
sketch6.addConstraint(Sketcher.Constraint("Equal", 7, 11))
sketch6.addConstraint(Sketcher.Constraint("DistanceX", 4, 2, 4, 1, 1.519658))
sketch6.addConstraint(Sketcher.Constraint("DistanceY", 3, 2, 3, 1, 0.759829))
sketch6.addConstraint(Sketcher.Constraint("DistanceY", 7, 2, 2, 2, 2.659402))
sketch6.addConstraint(Sketcher.Constraint("DistanceX", 0, 2, 0, 1, 2.279487))
sketch6.addConstraint(Sketcher.Constraint("DistanceY", 1, 1, 1, 2, 4.233333))
sketch6.addConstraint(Sketcher.Constraint("DistanceY", -1, 1, 1, 2, 1.76976))
sketch6.addConstraint(Sketcher.Constraint("DistanceX", -1, 1, 0, 2, 1.827387))
pad6 = doc.addObject("PartDesign::Pad", "Pad005")
body6.addObject(pad6)
pad6.Profile = sketch6
pad6.Length = Q("0.02 in")
body7 = doc.addObject("PartDesign::Body", "Body006")

# Sketch on XZ plane
sketch7 = doc.addObject("Sketcher::SketchObject", "Sketch006")
body7.addObject(sketch7)
sketch7.AttachmentSupport = (doc.getObject("XZ_Plane006"), [""])
sketch7.MapMode = "FlatFace"
sketch7.AttachmentOffset = App.Placement(App.Vector(0, 0, -0.25 * 25.4), App.Rotation())
sketch7.addGeometry(Part.LineSegment(App.Vector(5.75204, -2.463573, 0), App.Vector(4.866703, -2.463573, 0)), False)
sketch7.addGeometry(Part.LineSegment(App.Vector(4.866703, -2.463573, 0), App.Vector(4.866703, 1.76976, 0)), False)
sketch7.addGeometry(Part.LineSegment(App.Vector(4.866703, 1.76976, 0), App.Vector(5.626532, 1.76976, 0)), False)
sketch7.addGeometry(Part.LineSegment(App.Vector(5.626532, 1.76976, 0), App.Vector(5.626532, -0.075539, 0)), False)
sketch7.addGeometry(Part.LineSegment(App.Vector(5.626532, -0.075539, 0), App.Vector(5.884331, -0.075539, 0)), False)
sketch7.addGeometry(Part.LineSegment(App.Vector(5.884331, -0.075539, 0), App.Vector(6.817157, 1.76976, 0)), False)
sketch7.addGeometry(Part.LineSegment(App.Vector(6.817157, 1.76976, 0), App.Vector(7.661788, 1.76976, 0)), False)
sketch7.addGeometry(Part.LineSegment(App.Vector(7.661788, 1.76976, 0), App.Vector(6.684865, -0.162037, 0)), False)
sketch7.addGeometry(Part.BSplineCurve([App.Vector(7.471831, -1.261076, 0), App.Vector(7.471052, -1.227705, 0), App.Vector(7.469525, -1.16227, 0), App.Vector(7.461298, -1.066152, 0), App.Vector(7.446263, -0.974193, 0), App.Vector(7.423489, -0.886662, 0), App.Vector(7.397313, -0.80247, 0), App.Vector(7.362507, -0.723171, 0), App.Vector(7.323224, -0.64761, 0), App.Vector(7.276569, -0.576857, 0), App.Vector(7.225367, -0.50934, 0), App.Vector(7.165821, -0.447646, 0), App.Vector(7.101788, -0.38846, 0), App.Vector(7.029667, -0.335488, 0), App.Vector(6.95264, -0.285148, 0), App.Vector(6.869174, -0.239527, 0), App.Vector(6.779815, -0.197478, 0), App.Vector(6.716992, -0.174029, 0), App.Vector(6.684865, -0.162037, 0)], [4, 1, 1, 1, 1, 1, 1, 1, 1, 1, 1, 1, 1, 1, 1, 1, 4], [0, 0.000100124, 0.000196325, 0.000289175, 0.000379262, 0.000467493, 0.000553344, 0.000638696, 0.000722668, 0.000807309, 0.000892492, 0.000979541, 0.001068584, 0.001160554, 0.001255442, 0.001353703, 0.001456538], False, 3, [1, 1, 1, 1, 1, 1, 1, 1, 1, 1, 1, 1, 1, 1, 1, 1, 1, 1, 1], False), False)
sketch7.addGeometry(Part.BSplineCurve([App.Vector(5.75204, -2.463573, 0), App.Vector(5.81056, -2.463365, 0), App.Vector(5.923111, -2.462966, 0), App.Vector(6.085404, -2.456663, 0), App.Vector(6.234493, -2.447892, 0), App.Vector(6.370597, -2.434507, 0), App.Vector(6.49366, -2.41676, 0), App.Vector(6.603803, -2.39584, 0), App.Vector(6.701025, -2.371997, 0), App.Vector(6.786145, -2.342286, 0), App.Vector(6.862962, -2.308773, 0), App.Vector(6.934565, -2.270266, 0), App.Vector(7.002536, -2.227193, 0), App.Vector(7.066419, -2.178422, 0), App.Vector(7.12677, -2.124829, 0), App.Vector(7.183702, -2.066362, 0), App.Vector(7.236411, -2.002523, 0), App.Vector(7.284571, -1.933717, 0), App.Vector(7.328465, -1.861334, 0), App.Vector(7.367258, -1.785276, 0), App.Vector(7.398805, -1.705489, 0), App.Vector(7.426679, -1.623127, 0), App.Vector(7.446757, -1.537011, 0), App.Vector(7.46072, -1.447981, 0), App.Vector(7.470944, -1.355723, 0), App.Vector(7.471531, -1.293047, 0), App.Vector(7.471831, -1.261076, 0)], [4, 1, 1, 1, 1, 1, 1, 1, 1, 1, 1, 1, 1, 1, 1, 1, 1, 1, 1, 1, 1, 1, 1, 1, 4], [0, 0.000175549, 0.00033763, 0.000487174, 0.000623534, 0.00074778, 0.000860044, 0.000959797, 0.001047763, 0.001130165, 0.001210977, 0.001291432, 0.001371318, 0.001451813, 0.001533373, 0.001615893, 0.001699886, 0.001785112, 0.001869685, 0.001955666, 0.002042285, 0.00213032, 0.002220522, 0.002312582, 0.002408443], False, 3, [1, 1, 1, 1, 1, 1, 1, 1, 1, 1, 1, 1, 1, 1, 1, 1, 1, 1, 1, 1, 1, 1, 1, 1, 1, 1, 1], False), False)
sketch7.addGeometry(Part.LineSegment(App.Vector(5.626532, -0.835368, 0), App.Vector(5.626532, -1.703744, 0)), False)
sketch7.addGeometry(Part.LineSegment(App.Vector(5.626532, -1.703744, 0), App.Vector(5.885179, -1.703744, 0)), False)
sketch7.addGeometry(Part.BSplineCurve([App.Vector(6.712002, -1.271252, 0), App.Vector(6.71114, -1.293688, 0), App.Vector(6.709447, -1.337758, 0), App.Vector(6.692648, -1.401204, 0), App.Vector(6.665907, -1.459928, 0), App.Vector(6.629253, -1.513664, 0), App.Vector(6.583092, -1.560773, 0), App.Vector(6.530118, -1.6023, 0), App.Vector(6.469189, -1.635136, 0), App.Vector(6.412773, -1.656794, 0), App.Vector(6.361447, -1.669753, 0), App.Vector(6.315127, -1.679409, 0), App.Vector(6.261489, -1.686253, 0), App.Vector(6.200491, -1.693512, 0), App.Vector(6.13229, -1.698219, 0), App.Vector(6.056513, -1.701655, 0), App.Vector(5.973378, -1.70306, 0), App.Vector(5.915425, -1.70351, 0), App.Vector(5.885179, -1.703744, 0)], [4, 1, 1, 1, 1, 1, 1, 1, 1, 1, 1, 1, 1, 1, 1, 1, 4], [0, 0.000067187, 0.000131976, 0.000195351, 0.000260035, 0.000326007, 0.000392499, 0.000461195, 0.000532856, 0.000573171, 0.000619905, 0.000674712, 0.000735303, 0.000804181, 0.000879731, 0.000962855, 0.001053597], False, 3, [1, 1, 1, 1, 1, 1, 1, 1, 1, 1, 1, 1, 1, 1, 1, 1, 1, 1, 1], False), False)
sketch7.addGeometry(Part.BSplineCurve([App.Vector(5.922492, -0.835368, 0), App.Vector(5.958676, -0.835776, 0), App.Vector(6.02796, -0.836556, 0), App.Vector(6.127599, -0.840175, 0), App.Vector(6.218095, -0.848896, 0), App.Vector(6.299837, -0.859915, 0), App.Vector(6.373235, -0.872638, 0), App.Vector(6.437636, -0.89087, 0), App.Vector(6.494032, -0.910407, 0), App.Vector(6.541753, -0.934686, 0), App.Vector(6.582525, -0.962296, 0), App.Vector(6.61773, -0.993662, 0), App.Vector(6.646849, -1.029965, 0), App.Vector(6.670815, -1.070216, 0), App.Vector(6.689458, -1.114774, 0), App.Vector(6.703066, -1.163148, 0), App.Vector(6.710671, -1.215889, 0), App.Vector(6.711546, -1.252288, 0), App.Vector(6.712002, -1.271252, 0)], [4, 1, 1, 1, 1, 1, 1, 1, 1, 1, 1, 1, 1, 1, 1, 1, 4], [0, 0.00010856, 0.00020787, 0.000299003, 0.000381157, 0.000455338, 0.000522203, 0.000581758, 0.000634096, 0.000682314, 0.000729148, 0.000774972, 0.000821366, 0.000869248, 0.000919453, 0.000971743, 0.001028617], False, 3, [1, 1, 1, 1, 1, 1, 1, 1, 1, 1, 1, 1, 1, 1, 1, 1, 1, 1, 1], False), False)
sketch7.addGeometry(Part.LineSegment(App.Vector(5.922492, -0.835368, 0), App.Vector(5.626532, -0.835368, 0)), False)
sketch7.addConstraint(Sketcher.Constraint("Block", 8))
sketch7.addConstraint(Sketcher.Constraint("Block", 9))
sketch7.addConstraint(Sketcher.Constraint("Block", 12))
sketch7.addConstraint(Sketcher.Constraint("Block", 13))
sketch7.addConstraint(Sketcher.Constraint("Coincident", 0, 2, 1, 1))
sketch7.addConstraint(Sketcher.Constraint("Coincident", 1, 2, 2, 1))
sketch7.addConstraint(Sketcher.Constraint("Coincident", 2, 2, 3, 1))
sketch7.addConstraint(Sketcher.Constraint("Coincident", 3, 2, 4, 1))
sketch7.addConstraint(Sketcher.Constraint("Coincident", 4, 2, 5, 1))
sketch7.addConstraint(Sketcher.Constraint("Coincident", 5, 2, 6, 1))
sketch7.addConstraint(Sketcher.Constraint("Coincident", 6, 2, 7, 1))
sketch7.addConstraint(Sketcher.Constraint("Coincident", 7, 2, 8, 2))
sketch7.addConstraint(Sketcher.Constraint("Coincident", 9, 1, 0, 1))
sketch7.addConstraint(Sketcher.Constraint("Coincident", 10, 2, 11, 1))
sketch7.addConstraint(Sketcher.Constraint("Coincident", 11, 2, 12, 2))
sketch7.addConstraint(Sketcher.Constraint("Coincident", 13, 1, 14, 1))
sketch7.addConstraint(Sketcher.Constraint("Coincident", 14, 2, 10, 1))
sketch7.addConstraint(Sketcher.Constraint("Horizontal", 0))
sketch7.addConstraint(Sketcher.Constraint("Vertical", 1))
sketch7.addConstraint(Sketcher.Constraint("Horizontal", 2))
sketch7.addConstraint(Sketcher.Constraint("Vertical", 3))
sketch7.addConstraint(Sketcher.Constraint("Horizontal", 4))
sketch7.addConstraint(Sketcher.Constraint("Horizontal", 6))
sketch7.addConstraint(Sketcher.Constraint("Vertical", 10))
sketch7.addConstraint(Sketcher.Constraint("Horizontal", 11))
sketch7.addConstraint(Sketcher.Constraint("Horizontal", 14))
sketch7.addConstraint(Sketcher.Constraint("Horizontal", 2, 2, 5, 2))
sketch7.addConstraint(Sketcher.Constraint("Vertical", 3, 2, 10, 2))
sketch7.addConstraint(Sketcher.Constraint("DistanceX", 2, 2, 5, 2, Q("0.046875 in")))
sketch7.addConstraint(Sketcher.Constraint("DistanceX", 4, 1, 4, 2, 0.257799))
sketch7.addConstraint(Sketcher.Constraint("DistanceY", 3, 2, 3, 1, 1.845299))
sketch7.addConstraint(Sketcher.Constraint("DistanceX", 2, 1, 2, 2, 0.759829))
sketch7.addConstraint(Sketcher.Constraint("DistanceX", 6, 1, 6, 2, 0.844631))
sketch7.addConstraint(Sketcher.Constraint("DistanceX", 14, 2, 14, 1, 0.29596))
sketch7.addConstraint(Sketcher.Constraint("DistanceY", 7, 2, 4, 2, 0.086498))
pad7 = doc.addObject("PartDesign::Pad", "Pad006")
body7.addObject(pad7)
pad7.Profile = sketch7
pad7.Length = Q("0.02 in")
body8 = doc.addObject("PartDesign::Body", "Body007")

# Sketch on XZ plane
sketch8 = doc.addObject("Sketcher::SketchObject", "Sketch007")
body8.addObject(sketch8)
sketch8.AttachmentSupport = (doc.getObject("XZ_Plane007"), [""])
sketch8.MapMode = "FlatFace"
sketch8.AttachmentOffset = App.Placement(App.Vector(0, 0, -0.25 * 25.4), App.Rotation())
sketch8.addGeometry(Part.LineSegment(App.Vector(8.778635, -2.463573, 0), App.Vector(7.933156, -2.463573, 0)), False)
sketch8.addGeometry(Part.LineSegment(App.Vector(7.933156, -2.463573, 0), App.Vector(9.15431, -0.063667, 0)), False)
sketch8.addGeometry(Part.LineSegment(App.Vector(9.15431, -0.063667, 0), App.Vector(9.15431, 1.76976, 0)), False)
sketch8.addGeometry(Part.LineSegment(App.Vector(9.15431, 1.76976, 0), App.Vector(9.914139, 1.76976, 0)), False)
sketch8.addGeometry(Part.LineSegment(App.Vector(9.914139, 1.76976, 0), App.Vector(9.914139, -0.063667, 0)), False)
sketch8.addGeometry(Part.LineSegment(App.Vector(9.914139, -0.063667, 0), App.Vector(11.135293, -2.463573, 0)), False)
sketch8.addGeometry(Part.LineSegment(App.Vector(11.135293, -2.463573, 0), App.Vector(10.289813, -2.463573, 0)), False)
sketch8.addGeometry(Part.LineSegment(App.Vector(10.289813, -2.463573, 0), App.Vector(9.534224, -0.978684, 0)), False)
sketch8.addGeometry(Part.LineSegment(App.Vector(9.534224, -0.978684, 0), App.Vector(8.778635, -2.463573, 0)), False)
sketch8.addConstraint(Sketcher.Constraint("Coincident", 0, 2, 1, 1))
sketch8.addConstraint(Sketcher.Constraint("Coincident", 1, 2, 2, 1))
sketch8.addConstraint(Sketcher.Constraint("Coincident", 2, 2, 3, 1))
sketch8.addConstraint(Sketcher.Constraint("Coincident", 3, 2, 4, 1))
sketch8.addConstraint(Sketcher.Constraint("Coincident", 4, 2, 5, 1))
sketch8.addConstraint(Sketcher.Constraint("Coincident", 5, 2, 6, 1))
sketch8.addConstraint(Sketcher.Constraint("Coincident", 6, 2, 7, 1))
sketch8.addConstraint(Sketcher.Constraint("Coincident", 7, 2, 8, 1))
sketch8.addConstraint(Sketcher.Constraint("Coincident", 8, 2, 0, 1))
sketch8.addConstraint(Sketcher.Constraint("Horizontal", 0))
sketch8.addConstraint(Sketcher.Constraint("Vertical", 2))
sketch8.addConstraint(Sketcher.Constraint("Horizontal", 3))
sketch8.addConstraint(Sketcher.Constraint("Vertical", 4))
sketch8.addConstraint(Sketcher.Constraint("Horizontal", 6))
sketch8.addConstraint(Sketcher.Constraint("Horizontal", 1, 2, 4, 2))
sketch8.addConstraint(Sketcher.Constraint("Horizontal", 0, 2, 5, 2))
sketch8.addConstraint(Sketcher.Constraint("Equal", 0, 6))
sketch8.addConstraint(Sketcher.Constraint("Equal", 1, 5))
sketch8.addConstraint(Sketcher.Constraint("Equal", 7, 8))
sketch8.addConstraint(Sketcher.Constraint("DistanceX", 0, 2, 0, 1, 0.845479))
sketch8.addConstraint(Sketcher.Constraint("DistanceX", 3, 1, 3, 2, 0.759829))
sketch8.addConstraint(Sketcher.Constraint("DistanceY", 2, 1, 2, 2, 1.833427))
sketch8.addConstraint(Sketcher.Constraint("DistanceX", -1, 1, 1, 2, 9.15431))
sketch8.addConstraint(Sketcher.Constraint("DistanceY", -1, 1, 2, 2, 1.76976))
sketch8.addConstraint(Sketcher.Constraint("DistanceX", 7, 2, 6, 2, 0.755589))
sketch8.addConstraint(Sketcher.Constraint("DistanceY", 6, 2, 7, 2, 1.484889))
sketch8.addConstraint(Sketcher.Constraint("Distance", 1, 2.692725))
pad8 = doc.addObject("PartDesign::Pad", "Pad007")
body8.addObject(pad8)
pad8.Profile = sketch8
pad8.Length = Q("0.02 in")

doc.recompute()
